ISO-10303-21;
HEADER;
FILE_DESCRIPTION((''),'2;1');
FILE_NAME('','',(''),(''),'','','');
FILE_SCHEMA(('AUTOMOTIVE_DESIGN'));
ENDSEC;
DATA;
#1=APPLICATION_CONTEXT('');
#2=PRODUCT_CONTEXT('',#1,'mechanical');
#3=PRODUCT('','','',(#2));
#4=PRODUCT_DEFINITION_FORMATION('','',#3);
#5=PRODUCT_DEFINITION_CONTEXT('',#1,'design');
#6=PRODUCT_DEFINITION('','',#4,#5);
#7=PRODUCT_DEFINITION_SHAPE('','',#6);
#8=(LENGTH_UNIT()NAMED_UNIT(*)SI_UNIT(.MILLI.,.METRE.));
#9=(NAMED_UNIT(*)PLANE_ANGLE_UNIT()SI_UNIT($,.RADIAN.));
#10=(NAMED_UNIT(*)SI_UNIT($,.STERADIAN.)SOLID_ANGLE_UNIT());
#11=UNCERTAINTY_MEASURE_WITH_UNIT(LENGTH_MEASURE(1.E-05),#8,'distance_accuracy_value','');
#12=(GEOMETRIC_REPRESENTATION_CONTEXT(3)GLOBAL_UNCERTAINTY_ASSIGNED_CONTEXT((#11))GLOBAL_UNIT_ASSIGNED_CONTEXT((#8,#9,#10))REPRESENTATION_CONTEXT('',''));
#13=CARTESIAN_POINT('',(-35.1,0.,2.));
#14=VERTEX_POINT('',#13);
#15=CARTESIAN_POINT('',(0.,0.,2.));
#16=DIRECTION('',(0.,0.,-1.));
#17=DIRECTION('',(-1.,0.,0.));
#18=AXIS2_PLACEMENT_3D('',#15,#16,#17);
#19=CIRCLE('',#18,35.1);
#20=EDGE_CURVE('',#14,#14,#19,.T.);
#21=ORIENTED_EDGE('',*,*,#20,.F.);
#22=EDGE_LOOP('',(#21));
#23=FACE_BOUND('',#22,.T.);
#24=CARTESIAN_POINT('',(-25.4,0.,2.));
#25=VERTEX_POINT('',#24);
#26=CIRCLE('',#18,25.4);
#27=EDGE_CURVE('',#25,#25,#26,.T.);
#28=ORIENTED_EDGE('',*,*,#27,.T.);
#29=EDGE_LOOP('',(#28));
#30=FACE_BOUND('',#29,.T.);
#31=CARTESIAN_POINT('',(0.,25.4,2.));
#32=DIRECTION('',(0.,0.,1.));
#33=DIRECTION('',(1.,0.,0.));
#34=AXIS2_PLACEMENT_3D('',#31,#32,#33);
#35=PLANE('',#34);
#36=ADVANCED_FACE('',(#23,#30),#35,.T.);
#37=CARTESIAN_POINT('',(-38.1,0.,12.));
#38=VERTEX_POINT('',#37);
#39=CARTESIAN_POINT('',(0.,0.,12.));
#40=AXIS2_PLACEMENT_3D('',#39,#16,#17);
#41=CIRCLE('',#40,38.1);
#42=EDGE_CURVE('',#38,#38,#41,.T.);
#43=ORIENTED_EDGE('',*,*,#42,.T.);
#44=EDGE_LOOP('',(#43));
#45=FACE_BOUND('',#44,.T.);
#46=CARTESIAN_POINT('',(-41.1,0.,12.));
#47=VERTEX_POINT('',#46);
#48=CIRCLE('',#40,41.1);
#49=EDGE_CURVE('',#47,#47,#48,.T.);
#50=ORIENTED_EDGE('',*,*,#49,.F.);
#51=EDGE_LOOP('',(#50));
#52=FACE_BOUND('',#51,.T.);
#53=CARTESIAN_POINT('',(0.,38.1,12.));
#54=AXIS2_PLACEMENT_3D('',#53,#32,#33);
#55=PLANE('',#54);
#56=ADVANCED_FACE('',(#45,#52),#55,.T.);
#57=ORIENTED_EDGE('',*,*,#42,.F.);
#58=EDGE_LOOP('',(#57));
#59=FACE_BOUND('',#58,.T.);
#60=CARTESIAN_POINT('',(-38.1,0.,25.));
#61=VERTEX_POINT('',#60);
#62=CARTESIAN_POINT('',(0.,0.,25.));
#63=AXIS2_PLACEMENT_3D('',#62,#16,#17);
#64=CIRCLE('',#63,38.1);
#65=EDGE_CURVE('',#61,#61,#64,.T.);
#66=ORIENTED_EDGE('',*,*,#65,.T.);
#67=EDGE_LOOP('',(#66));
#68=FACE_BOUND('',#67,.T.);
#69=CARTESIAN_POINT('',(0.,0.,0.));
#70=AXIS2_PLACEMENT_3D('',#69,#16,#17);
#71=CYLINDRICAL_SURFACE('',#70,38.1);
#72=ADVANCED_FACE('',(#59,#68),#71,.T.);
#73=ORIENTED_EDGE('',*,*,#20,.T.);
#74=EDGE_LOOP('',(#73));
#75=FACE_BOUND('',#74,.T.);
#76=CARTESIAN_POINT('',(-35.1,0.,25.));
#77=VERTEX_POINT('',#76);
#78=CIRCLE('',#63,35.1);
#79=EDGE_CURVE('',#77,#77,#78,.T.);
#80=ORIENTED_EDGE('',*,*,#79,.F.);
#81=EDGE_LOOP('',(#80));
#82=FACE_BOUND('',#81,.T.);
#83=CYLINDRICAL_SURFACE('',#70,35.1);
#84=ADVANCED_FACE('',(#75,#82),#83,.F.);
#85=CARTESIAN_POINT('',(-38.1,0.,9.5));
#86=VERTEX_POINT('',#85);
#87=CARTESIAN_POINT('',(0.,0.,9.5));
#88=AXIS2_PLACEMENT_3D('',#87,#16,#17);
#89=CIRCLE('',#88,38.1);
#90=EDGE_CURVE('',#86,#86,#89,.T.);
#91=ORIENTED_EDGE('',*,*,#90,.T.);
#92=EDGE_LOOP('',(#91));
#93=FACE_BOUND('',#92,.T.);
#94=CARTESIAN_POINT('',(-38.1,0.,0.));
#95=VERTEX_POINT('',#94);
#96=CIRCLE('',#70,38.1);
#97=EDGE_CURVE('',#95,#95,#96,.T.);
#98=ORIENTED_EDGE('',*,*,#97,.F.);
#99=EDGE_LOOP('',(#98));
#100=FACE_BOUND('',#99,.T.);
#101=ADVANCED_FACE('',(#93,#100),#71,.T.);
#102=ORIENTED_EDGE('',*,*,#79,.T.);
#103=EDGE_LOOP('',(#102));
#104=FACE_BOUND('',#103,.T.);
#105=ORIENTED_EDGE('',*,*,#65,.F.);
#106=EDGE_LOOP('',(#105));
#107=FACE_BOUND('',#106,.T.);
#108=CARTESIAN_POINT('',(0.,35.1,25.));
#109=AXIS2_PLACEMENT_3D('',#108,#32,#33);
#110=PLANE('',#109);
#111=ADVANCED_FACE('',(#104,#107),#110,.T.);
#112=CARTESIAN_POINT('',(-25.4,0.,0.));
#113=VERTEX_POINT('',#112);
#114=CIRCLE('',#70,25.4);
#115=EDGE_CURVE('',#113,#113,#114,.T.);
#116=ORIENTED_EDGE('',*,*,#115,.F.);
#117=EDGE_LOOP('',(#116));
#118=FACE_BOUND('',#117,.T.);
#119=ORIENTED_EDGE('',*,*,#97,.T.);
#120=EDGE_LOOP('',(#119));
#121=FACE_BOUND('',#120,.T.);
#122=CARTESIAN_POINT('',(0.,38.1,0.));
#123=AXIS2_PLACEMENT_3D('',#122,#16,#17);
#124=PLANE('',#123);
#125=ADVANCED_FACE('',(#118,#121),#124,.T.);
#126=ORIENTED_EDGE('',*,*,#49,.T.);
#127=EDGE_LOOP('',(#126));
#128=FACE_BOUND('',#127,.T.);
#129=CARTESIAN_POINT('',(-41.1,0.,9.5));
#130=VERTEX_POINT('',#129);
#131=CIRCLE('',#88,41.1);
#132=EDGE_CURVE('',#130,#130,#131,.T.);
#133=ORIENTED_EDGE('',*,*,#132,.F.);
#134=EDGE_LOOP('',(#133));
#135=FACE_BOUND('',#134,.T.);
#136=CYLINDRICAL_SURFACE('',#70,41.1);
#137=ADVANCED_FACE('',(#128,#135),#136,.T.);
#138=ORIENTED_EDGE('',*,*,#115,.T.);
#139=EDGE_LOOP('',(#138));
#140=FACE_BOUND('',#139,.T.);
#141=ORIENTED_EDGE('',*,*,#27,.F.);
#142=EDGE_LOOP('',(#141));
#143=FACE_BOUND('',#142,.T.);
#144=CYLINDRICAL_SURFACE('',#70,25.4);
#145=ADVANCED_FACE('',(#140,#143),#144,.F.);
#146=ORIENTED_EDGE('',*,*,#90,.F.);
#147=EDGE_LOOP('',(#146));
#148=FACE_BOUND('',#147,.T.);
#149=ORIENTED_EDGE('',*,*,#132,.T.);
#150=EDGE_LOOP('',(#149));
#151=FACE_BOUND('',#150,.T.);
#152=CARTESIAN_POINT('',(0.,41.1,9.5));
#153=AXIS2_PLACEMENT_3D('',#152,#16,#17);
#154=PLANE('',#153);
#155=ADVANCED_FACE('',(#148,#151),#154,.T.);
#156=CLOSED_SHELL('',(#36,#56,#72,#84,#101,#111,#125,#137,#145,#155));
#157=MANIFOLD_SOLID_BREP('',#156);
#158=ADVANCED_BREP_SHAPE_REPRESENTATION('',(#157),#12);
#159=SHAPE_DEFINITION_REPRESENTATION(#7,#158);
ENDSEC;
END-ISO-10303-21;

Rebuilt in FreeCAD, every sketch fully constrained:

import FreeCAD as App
import Part
import Sketcher
from FreeCAD import Vector
Q = App.Units.Quantity


def add_polygon(sketch, points):
    """Adds a closed chain of lines whose ends are joined by coincident constraints."""
    first, n = sketch.GeometryCount, len(points)
    for a, b in zip(points, points[1:] + points[:1]):
        sketch.addGeometry(Part.LineSegment(App.Vector(*a, 0), App.Vector(*b, 0)), False)
    for i in range(n):
        sketch.addConstraint(Sketcher.Constraint("Coincident", first + i, 2, first + (i + 1) % n, 1))

doc = App.newDocument("Part")
body = doc.addObject("PartDesign::Body", "Body")

# Sketch on YZ plane
sketch1 = body.newObject("Sketcher::SketchObject", "Sketch")
sketch1.AttachmentSupport = (doc.getObject("YZ_Plane"), [""])
sketch1.MapMode = "FlatFace"
add_polygon(sketch1, [(25.4, 2), (25.4, 0), (38.1, 0), (38.1, 9.5), (41.1, 9.5), (41.1, 12), (38.1, 12), (38.1, 25), (35.1, 25), (35.1, 2)])  # lines 0-9
sketch1.addConstraint(Sketcher.Constraint("Vertical", 0))
sketch1.addConstraint(Sketcher.Constraint("Horizontal", 1))
sketch1.addConstraint(Sketcher.Constraint("Vertical", 2))
sketch1.addConstraint(Sketcher.Constraint("Horizontal", 3))
sketch1.addConstraint(Sketcher.Constraint("Vertical", 4))
sketch1.addConstraint(Sketcher.Constraint("Horizontal", 5))
sketch1.addConstraint(Sketcher.Constraint("Vertical", 6))
sketch1.addConstraint(Sketcher.Constraint("Horizontal", 7))
sketch1.addConstraint(Sketcher.Constraint("Vertical", 8))
sketch1.addConstraint(Sketcher.Constraint("Horizontal", 9))
sketch1.addConstraint(Sketcher.Constraint("PointOnObject", 0, 2, -1))
sketch1.addConstraint(Sketcher.Constraint("Vertical", 2, 2, 5, 2))
sketch1.addConstraint(Sketcher.Constraint("Equal", 5, 7))
sketch1.addConstraint(Sketcher.Constraint("DistanceX", 3, 1, 3, 2, Q("3 mm")))
sketch1.addConstraint(Sketcher.Constraint("DistanceY", 0, 2, 0, 1, Q("2 mm")))
sketch1.addConstraint(Sketcher.Constraint("DistanceY", 6, 1, 6, 2, Q("13 mm")))
sketch1.addConstraint(Sketcher.Constraint("DistanceY", 8, 2, 8, 1, Q("23 mm")))
sketch1.addConstraint(Sketcher.Constraint("DistanceX", 1, 1, 1, 2, Q("12.7 mm")))
sketch1.addConstraint(Sketcher.Constraint("DistanceY", 2, 1, 2, 2, Q("9.5 mm")))
sketch1.addConstraint(Sketcher.Constraint("DistanceX", -1, 1, 0, 2, Q("25.4 mm")))
revolution = body.newObject("PartDesign::Revolution", "Revolution")
revolution.Profile = sketch1
revolution.ReferenceAxis = (sketch1, ["V_Axis"])
revolution.Angle = 360

doc.recompute()
